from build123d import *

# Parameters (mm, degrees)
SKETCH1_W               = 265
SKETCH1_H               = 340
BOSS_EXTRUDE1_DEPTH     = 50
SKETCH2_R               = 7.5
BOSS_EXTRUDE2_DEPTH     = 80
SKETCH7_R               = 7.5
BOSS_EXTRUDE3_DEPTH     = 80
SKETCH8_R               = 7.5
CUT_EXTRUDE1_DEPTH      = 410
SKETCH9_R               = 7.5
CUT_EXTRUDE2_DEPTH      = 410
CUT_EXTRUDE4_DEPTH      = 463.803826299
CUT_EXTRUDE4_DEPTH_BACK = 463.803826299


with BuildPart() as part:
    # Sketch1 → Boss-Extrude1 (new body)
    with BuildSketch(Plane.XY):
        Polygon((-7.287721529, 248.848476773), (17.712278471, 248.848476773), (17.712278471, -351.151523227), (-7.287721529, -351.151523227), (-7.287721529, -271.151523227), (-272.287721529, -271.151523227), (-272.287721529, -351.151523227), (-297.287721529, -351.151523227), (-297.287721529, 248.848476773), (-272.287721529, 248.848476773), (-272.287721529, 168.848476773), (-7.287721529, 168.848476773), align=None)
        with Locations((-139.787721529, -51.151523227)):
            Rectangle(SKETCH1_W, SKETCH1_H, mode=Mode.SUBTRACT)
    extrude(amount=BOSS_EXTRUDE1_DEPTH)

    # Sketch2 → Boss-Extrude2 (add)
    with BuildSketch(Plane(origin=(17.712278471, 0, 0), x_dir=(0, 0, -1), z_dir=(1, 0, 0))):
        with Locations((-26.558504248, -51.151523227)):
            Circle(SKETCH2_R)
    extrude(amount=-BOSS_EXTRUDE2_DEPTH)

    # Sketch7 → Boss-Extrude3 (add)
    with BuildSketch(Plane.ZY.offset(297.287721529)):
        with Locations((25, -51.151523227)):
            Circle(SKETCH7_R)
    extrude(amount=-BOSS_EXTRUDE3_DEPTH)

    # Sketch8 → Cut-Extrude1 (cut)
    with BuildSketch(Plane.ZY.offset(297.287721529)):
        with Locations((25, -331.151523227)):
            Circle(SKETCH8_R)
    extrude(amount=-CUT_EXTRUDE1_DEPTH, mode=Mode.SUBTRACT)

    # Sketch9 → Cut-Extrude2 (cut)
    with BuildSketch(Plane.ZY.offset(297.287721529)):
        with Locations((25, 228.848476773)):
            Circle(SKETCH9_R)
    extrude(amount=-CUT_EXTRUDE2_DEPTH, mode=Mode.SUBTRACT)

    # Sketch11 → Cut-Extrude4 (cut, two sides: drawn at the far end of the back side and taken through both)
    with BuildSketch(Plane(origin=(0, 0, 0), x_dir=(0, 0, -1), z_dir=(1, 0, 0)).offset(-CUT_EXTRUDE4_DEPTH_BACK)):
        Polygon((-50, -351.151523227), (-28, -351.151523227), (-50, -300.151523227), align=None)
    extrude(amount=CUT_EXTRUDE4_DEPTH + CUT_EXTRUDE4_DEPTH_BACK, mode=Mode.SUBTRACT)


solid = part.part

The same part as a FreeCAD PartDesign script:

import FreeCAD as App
import Part
import Sketcher

doc = App.newDocument("Part")
body = doc.addObject("PartDesign::Body", "Body")

# Sketch on XY plane
sketch1 = body.newObject("Sketcher::SketchObject", "Sketch")
sketch1.AttachmentSupport = (doc.getObject("XY_Plane"), [""])
sketch1.MapMode = "FlatFace"
sketch1.addGeometry([
    Part.LineSegment(App.Vector(18, 249, 0), App.Vector(-7, 249, 0)),  # 0
    Part.LineSegment(App.Vector(-7, 249, 0), App.Vector(-7, 169, 0)),  # 1
    Part.LineSegment(App.Vector(-7, 169, 0), App.Vector(-272, 169, 0)),  # 2
    Part.LineSegment(App.Vector(-272, 169, 0), App.Vector(-272, 249, 0)),  # 3
    Part.LineSegment(App.Vector(-272, 249, 0), App.Vector(-297, 249, 0)),  # 4
    Part.LineSegment(App.Vector(-297, 249, 0), App.Vector(-297, -351, 0)),  # 5
    Part.LineSegment(App.Vector(-297, -351, 0), App.Vector(-272, -351, 0)),  # 6
    Part.LineSegment(App.Vector(-272, -351, 0), App.Vector(-272, -271, 0)),  # 7
    Part.LineSegment(App.Vector(-272, -271, 0), App.Vector(-7, -271, 0)),  # 8
    Part.LineSegment(App.Vector(-7, -271, 0), App.Vector(-7, -351, 0)),  # 9
    Part.LineSegment(App.Vector(-7, -351, 0), App.Vector(18, -351, 0)),  # 10
    Part.LineSegment(App.Vector(18, -351, 0), App.Vector(18, 249, 0)),  # 11
    Part.LineSegment(App.Vector(-272, -221, 0), App.Vector(-272, 119, 0)),  # 12
    Part.LineSegment(App.Vector(-272, 119, 0), App.Vector(-7, 119, 0)),  # 13
    Part.LineSegment(App.Vector(-7, 119, 0), App.Vector(-7, -221, 0)),  # 14
    Part.LineSegment(App.Vector(-7, -221, 0), App.Vector(-272, -221, 0)),  # 15
], False)
sketch1.addConstraint([
    Sketcher.Constraint("Coincident", 0, 2, 1, 1),
    Sketcher.Constraint("Coincident", 1, 2, 2, 1),
    Sketcher.Constraint("Coincident", 2, 2, 3, 1),
    Sketcher.Constraint("Coincident", 3, 2, 4, 1),
    Sketcher.Constraint("Coincident", 4, 2, 5, 1),
    Sketcher.Constraint("Coincident", 5, 2, 6, 1),
    Sketcher.Constraint("Coincident", 6, 2, 7, 1),
    Sketcher.Constraint("Coincident", 7, 2, 8, 1),
    Sketcher.Constraint("Coincident", 8, 2, 9, 1),
    Sketcher.Constraint("Coincident", 9, 2, 10, 1),
    Sketcher.Constraint("Coincident", 10, 2, 11, 1),
    Sketcher.Constraint("Coincident", 11, 2, 0, 1),
    Sketcher.Constraint("Coincident", 12, 2, 13, 1),
    Sketcher.Constraint("Coincident", 13, 2, 14, 1),
    Sketcher.Constraint("Coincident", 14, 2, 15, 1),
    Sketcher.Constraint("Coincident", 15, 2, 12, 1),
    Sketcher.Constraint("Horizontal", 0),
    Sketcher.Constraint("Vertical", 1),
    Sketcher.Constraint("Horizontal", 2),
    Sketcher.Constraint("Vertical", 3),
    Sketcher.Constraint("Horizontal", 4),
    Sketcher.Constraint("Vertical", 5),
    Sketcher.Constraint("Horizontal", 6),
    Sketcher.Constraint("Vertical", 7),
    Sketcher.Constraint("Horizontal", 8),
    Sketcher.Constraint("Vertical", 9),
    Sketcher.Constraint("Horizontal", 10),
    Sketcher.Constraint("Vertical", 11),
    Sketcher.Constraint("Vertical", 12),
    Sketcher.Constraint("Horizontal", 13),
    Sketcher.Constraint("Vertical", 14),
    Sketcher.Constraint("Horizontal", 15),
    Sketcher.Constraint("Horizontal", 0, 2, 3, 2),
    Sketcher.Constraint("Horizontal", 6, 2, 9, 2),
    Sketcher.Constraint("Vertical", 3, 2, 6, 2),
    Sketcher.Constraint("Vertical", 1, 2, 8, 2),
    Sketcher.Constraint("Vertical", 7, 2, 12, 2),
    Sketcher.Constraint("Vertical", 9, 2, 13, 2),
    Sketcher.Constraint("Equal", 0, 4),
    Sketcher.Constraint("Equal", 3, 7),
    Sketcher.Constraint("DistanceX", 0, 2, 0, 1, 25.0),
    Sketcher.Constraint("DistanceX", 2, 2, 2, 1, 265.0),
    Sketcher.Constraint("DistanceY", 1, 2, 1, 1, 80.0),
    Sketcher.Constraint("DistanceY", 5, 2, 5, 1, 600.0),
    Sketcher.Constraint("DistanceY", 12, 1, 12, 2, 340.0),
    Sketcher.Constraint("DistanceY", 12, 2, 2, 2, 50.0),
    Sketcher.Constraint("DistanceX", 0, 2, -1, 1, 7.287722),
    Sketcher.Constraint("DistanceY", -1, 1, 0, 2, 248.848477),
])
pad1 = body.newObject("PartDesign::Pad", "Pad")
pad1.Profile = sketch1
pad1.Length = 50

# Sketch on YZ plane
sketch2 = body.newObject("Sketcher::SketchObject", "Sketch001")
sketch2.AttachmentSupport = (doc.getObject("YZ_Plane"), [""])
sketch2.MapMode = "FlatFace"
sketch2.AttachmentOffset = App.Placement(App.Vector(0, 0, 17.712278), App.Rotation())
sketch2.addGeometry(Part.Circle(App.Vector(-51, 27, 0), App.Vector(0, 0, 1), 8), False)
sketch2.addConstraint([
    Sketcher.Constraint("Diameter", 0, 15.0),
    Sketcher.Constraint("DistanceX", 0, 3, -1, 1, 51.151523),
    Sketcher.Constraint("DistanceY", -1, 1, 0, 3, 26.558504),
])
pad2 = body.newObject("PartDesign::Pad", "Pad001")
pad2.Profile = sketch2
pad2.Length = 80
pad2.Reversed = True

# Sketch on YZ plane
sketch3 = body.newObject("Sketcher::SketchObject", "Sketch002")
sketch3.AttachmentSupport = (doc.getObject("YZ_Plane"), [""])
sketch3.MapMode = "FlatFace"
sketch3.AttachmentOffset = App.Placement(App.Vector(0, 0, -297.287722), App.Rotation())
sketch3.addGeometry(Part.Circle(App.Vector(-51, 25, 0), App.Vector(0, 0, 1), 8), False)
sketch3.addConstraint([
    Sketcher.Constraint("Diameter", 0, 15.0),
    Sketcher.Constraint("DistanceY", -1, 1, 0, 3, 25.0),
    Sketcher.Constraint("DistanceX", 0, 3, -1, 1, 51.151523),
])
pad3 = body.newObject("PartDesign::Pad", "Pad002")
pad3.Profile = sketch3
pad3.Length = 80

# Sketch on YZ plane
sketch4 = body.newObject("Sketcher::SketchObject", "Sketch003")
sketch4.AttachmentSupport = (doc.getObject("YZ_Plane"), [""])
sketch4.MapMode = "FlatFace"
sketch4.AttachmentOffset = App.Placement(App.Vector(0, 0, -297.287722), App.Rotation())
sketch4.addGeometry(Part.Circle(App.Vector(-331, 25, 0), App.Vector(0, 0, 1), 8), False)
sketch4.addConstraint([
    Sketcher.Constraint("Diameter", 0, 15.0),
    Sketcher.Constraint("DistanceY", -1, 1, 0, 3, 25.0),
    Sketcher.Constraint("DistanceX", 0, 3, -1, 1, 331.151523),
])
pocket1 = body.newObject("PartDesign::Pocket", "Pocket")
pocket1.Profile = sketch4
pocket1.Length = 410
pocket1.Reversed = True

# Sketch on YZ plane
sketch5 = body.newObject("Sketcher::SketchObject", "Sketch004")
sketch5.AttachmentSupport = (doc.getObject("YZ_Plane"), [""])
sketch5.MapMode = "FlatFace"
sketch5.AttachmentOffset = App.Placement(App.Vector(0, 0, -297.287722), App.Rotation())
sketch5.addGeometry(Part.Circle(App.Vector(229, 25, 0), App.Vector(0, 0, 1), 8), False)
sketch5.addConstraint([
    Sketcher.Constraint("Diameter", 0, 15.0),
    Sketcher.Constraint("DistanceY", -1, 1, 0, 3, 25.0),
    Sketcher.Constraint("DistanceX", -1, 1, 0, 3, 228.848477),
])
pocket2 = body.newObject("PartDesign::Pocket", "Pocket001")
pocket2.Profile = sketch5
pocket2.Length = 410
pocket2.Reversed = True

# Sketch on YZ plane
sketch6 = body.newObject("Sketcher::SketchObject", "Sketch005")
sketch6.AttachmentSupport = (doc.getObject("YZ_Plane"), [""])
sketch6.MapMode = "FlatFace"
sketch6.addGeometry([
    Part.LineSegment(App.Vector(-351, 50, 0), App.Vector(-351, 28, 0)),
    Part.LineSegment(App.Vector(-351, 28, 0), App.Vector(-300, 50, 0)),
    Part.LineSegment(App.Vector(-300, 50, 0), App.Vector(-351, 50, 0)),
], False)
sketch6.addConstraint([
    Sketcher.Constraint("Coincident", 0, 2, 1, 1),
    Sketcher.Constraint("Coincident", 1, 2, 2, 1),
    Sketcher.Constraint("Coincident", 2, 2, 0, 1),
    Sketcher.Constraint("Vertical", 0),
    Sketcher.Constraint("Horizontal", 2),
    Sketcher.Constraint("DistanceX", 2, 2, 2, 1, 51.0),
    Sketcher.Constraint("DistanceY", 0, 2, 0, 1, 22.0),
    Sketcher.Constraint("DistanceY", -1, 1, 0, 2, 28.0),
    Sketcher.Constraint("DistanceX", 0, 2, -1, 1, 351.151523),
])
pocket3 = body.newObject("PartDesign::Pocket", "Pocket002")
pocket3.Profile = sketch6
pocket3.Type = "ThroughAll"
pocket3.Midplane = True

doc.recompute()
